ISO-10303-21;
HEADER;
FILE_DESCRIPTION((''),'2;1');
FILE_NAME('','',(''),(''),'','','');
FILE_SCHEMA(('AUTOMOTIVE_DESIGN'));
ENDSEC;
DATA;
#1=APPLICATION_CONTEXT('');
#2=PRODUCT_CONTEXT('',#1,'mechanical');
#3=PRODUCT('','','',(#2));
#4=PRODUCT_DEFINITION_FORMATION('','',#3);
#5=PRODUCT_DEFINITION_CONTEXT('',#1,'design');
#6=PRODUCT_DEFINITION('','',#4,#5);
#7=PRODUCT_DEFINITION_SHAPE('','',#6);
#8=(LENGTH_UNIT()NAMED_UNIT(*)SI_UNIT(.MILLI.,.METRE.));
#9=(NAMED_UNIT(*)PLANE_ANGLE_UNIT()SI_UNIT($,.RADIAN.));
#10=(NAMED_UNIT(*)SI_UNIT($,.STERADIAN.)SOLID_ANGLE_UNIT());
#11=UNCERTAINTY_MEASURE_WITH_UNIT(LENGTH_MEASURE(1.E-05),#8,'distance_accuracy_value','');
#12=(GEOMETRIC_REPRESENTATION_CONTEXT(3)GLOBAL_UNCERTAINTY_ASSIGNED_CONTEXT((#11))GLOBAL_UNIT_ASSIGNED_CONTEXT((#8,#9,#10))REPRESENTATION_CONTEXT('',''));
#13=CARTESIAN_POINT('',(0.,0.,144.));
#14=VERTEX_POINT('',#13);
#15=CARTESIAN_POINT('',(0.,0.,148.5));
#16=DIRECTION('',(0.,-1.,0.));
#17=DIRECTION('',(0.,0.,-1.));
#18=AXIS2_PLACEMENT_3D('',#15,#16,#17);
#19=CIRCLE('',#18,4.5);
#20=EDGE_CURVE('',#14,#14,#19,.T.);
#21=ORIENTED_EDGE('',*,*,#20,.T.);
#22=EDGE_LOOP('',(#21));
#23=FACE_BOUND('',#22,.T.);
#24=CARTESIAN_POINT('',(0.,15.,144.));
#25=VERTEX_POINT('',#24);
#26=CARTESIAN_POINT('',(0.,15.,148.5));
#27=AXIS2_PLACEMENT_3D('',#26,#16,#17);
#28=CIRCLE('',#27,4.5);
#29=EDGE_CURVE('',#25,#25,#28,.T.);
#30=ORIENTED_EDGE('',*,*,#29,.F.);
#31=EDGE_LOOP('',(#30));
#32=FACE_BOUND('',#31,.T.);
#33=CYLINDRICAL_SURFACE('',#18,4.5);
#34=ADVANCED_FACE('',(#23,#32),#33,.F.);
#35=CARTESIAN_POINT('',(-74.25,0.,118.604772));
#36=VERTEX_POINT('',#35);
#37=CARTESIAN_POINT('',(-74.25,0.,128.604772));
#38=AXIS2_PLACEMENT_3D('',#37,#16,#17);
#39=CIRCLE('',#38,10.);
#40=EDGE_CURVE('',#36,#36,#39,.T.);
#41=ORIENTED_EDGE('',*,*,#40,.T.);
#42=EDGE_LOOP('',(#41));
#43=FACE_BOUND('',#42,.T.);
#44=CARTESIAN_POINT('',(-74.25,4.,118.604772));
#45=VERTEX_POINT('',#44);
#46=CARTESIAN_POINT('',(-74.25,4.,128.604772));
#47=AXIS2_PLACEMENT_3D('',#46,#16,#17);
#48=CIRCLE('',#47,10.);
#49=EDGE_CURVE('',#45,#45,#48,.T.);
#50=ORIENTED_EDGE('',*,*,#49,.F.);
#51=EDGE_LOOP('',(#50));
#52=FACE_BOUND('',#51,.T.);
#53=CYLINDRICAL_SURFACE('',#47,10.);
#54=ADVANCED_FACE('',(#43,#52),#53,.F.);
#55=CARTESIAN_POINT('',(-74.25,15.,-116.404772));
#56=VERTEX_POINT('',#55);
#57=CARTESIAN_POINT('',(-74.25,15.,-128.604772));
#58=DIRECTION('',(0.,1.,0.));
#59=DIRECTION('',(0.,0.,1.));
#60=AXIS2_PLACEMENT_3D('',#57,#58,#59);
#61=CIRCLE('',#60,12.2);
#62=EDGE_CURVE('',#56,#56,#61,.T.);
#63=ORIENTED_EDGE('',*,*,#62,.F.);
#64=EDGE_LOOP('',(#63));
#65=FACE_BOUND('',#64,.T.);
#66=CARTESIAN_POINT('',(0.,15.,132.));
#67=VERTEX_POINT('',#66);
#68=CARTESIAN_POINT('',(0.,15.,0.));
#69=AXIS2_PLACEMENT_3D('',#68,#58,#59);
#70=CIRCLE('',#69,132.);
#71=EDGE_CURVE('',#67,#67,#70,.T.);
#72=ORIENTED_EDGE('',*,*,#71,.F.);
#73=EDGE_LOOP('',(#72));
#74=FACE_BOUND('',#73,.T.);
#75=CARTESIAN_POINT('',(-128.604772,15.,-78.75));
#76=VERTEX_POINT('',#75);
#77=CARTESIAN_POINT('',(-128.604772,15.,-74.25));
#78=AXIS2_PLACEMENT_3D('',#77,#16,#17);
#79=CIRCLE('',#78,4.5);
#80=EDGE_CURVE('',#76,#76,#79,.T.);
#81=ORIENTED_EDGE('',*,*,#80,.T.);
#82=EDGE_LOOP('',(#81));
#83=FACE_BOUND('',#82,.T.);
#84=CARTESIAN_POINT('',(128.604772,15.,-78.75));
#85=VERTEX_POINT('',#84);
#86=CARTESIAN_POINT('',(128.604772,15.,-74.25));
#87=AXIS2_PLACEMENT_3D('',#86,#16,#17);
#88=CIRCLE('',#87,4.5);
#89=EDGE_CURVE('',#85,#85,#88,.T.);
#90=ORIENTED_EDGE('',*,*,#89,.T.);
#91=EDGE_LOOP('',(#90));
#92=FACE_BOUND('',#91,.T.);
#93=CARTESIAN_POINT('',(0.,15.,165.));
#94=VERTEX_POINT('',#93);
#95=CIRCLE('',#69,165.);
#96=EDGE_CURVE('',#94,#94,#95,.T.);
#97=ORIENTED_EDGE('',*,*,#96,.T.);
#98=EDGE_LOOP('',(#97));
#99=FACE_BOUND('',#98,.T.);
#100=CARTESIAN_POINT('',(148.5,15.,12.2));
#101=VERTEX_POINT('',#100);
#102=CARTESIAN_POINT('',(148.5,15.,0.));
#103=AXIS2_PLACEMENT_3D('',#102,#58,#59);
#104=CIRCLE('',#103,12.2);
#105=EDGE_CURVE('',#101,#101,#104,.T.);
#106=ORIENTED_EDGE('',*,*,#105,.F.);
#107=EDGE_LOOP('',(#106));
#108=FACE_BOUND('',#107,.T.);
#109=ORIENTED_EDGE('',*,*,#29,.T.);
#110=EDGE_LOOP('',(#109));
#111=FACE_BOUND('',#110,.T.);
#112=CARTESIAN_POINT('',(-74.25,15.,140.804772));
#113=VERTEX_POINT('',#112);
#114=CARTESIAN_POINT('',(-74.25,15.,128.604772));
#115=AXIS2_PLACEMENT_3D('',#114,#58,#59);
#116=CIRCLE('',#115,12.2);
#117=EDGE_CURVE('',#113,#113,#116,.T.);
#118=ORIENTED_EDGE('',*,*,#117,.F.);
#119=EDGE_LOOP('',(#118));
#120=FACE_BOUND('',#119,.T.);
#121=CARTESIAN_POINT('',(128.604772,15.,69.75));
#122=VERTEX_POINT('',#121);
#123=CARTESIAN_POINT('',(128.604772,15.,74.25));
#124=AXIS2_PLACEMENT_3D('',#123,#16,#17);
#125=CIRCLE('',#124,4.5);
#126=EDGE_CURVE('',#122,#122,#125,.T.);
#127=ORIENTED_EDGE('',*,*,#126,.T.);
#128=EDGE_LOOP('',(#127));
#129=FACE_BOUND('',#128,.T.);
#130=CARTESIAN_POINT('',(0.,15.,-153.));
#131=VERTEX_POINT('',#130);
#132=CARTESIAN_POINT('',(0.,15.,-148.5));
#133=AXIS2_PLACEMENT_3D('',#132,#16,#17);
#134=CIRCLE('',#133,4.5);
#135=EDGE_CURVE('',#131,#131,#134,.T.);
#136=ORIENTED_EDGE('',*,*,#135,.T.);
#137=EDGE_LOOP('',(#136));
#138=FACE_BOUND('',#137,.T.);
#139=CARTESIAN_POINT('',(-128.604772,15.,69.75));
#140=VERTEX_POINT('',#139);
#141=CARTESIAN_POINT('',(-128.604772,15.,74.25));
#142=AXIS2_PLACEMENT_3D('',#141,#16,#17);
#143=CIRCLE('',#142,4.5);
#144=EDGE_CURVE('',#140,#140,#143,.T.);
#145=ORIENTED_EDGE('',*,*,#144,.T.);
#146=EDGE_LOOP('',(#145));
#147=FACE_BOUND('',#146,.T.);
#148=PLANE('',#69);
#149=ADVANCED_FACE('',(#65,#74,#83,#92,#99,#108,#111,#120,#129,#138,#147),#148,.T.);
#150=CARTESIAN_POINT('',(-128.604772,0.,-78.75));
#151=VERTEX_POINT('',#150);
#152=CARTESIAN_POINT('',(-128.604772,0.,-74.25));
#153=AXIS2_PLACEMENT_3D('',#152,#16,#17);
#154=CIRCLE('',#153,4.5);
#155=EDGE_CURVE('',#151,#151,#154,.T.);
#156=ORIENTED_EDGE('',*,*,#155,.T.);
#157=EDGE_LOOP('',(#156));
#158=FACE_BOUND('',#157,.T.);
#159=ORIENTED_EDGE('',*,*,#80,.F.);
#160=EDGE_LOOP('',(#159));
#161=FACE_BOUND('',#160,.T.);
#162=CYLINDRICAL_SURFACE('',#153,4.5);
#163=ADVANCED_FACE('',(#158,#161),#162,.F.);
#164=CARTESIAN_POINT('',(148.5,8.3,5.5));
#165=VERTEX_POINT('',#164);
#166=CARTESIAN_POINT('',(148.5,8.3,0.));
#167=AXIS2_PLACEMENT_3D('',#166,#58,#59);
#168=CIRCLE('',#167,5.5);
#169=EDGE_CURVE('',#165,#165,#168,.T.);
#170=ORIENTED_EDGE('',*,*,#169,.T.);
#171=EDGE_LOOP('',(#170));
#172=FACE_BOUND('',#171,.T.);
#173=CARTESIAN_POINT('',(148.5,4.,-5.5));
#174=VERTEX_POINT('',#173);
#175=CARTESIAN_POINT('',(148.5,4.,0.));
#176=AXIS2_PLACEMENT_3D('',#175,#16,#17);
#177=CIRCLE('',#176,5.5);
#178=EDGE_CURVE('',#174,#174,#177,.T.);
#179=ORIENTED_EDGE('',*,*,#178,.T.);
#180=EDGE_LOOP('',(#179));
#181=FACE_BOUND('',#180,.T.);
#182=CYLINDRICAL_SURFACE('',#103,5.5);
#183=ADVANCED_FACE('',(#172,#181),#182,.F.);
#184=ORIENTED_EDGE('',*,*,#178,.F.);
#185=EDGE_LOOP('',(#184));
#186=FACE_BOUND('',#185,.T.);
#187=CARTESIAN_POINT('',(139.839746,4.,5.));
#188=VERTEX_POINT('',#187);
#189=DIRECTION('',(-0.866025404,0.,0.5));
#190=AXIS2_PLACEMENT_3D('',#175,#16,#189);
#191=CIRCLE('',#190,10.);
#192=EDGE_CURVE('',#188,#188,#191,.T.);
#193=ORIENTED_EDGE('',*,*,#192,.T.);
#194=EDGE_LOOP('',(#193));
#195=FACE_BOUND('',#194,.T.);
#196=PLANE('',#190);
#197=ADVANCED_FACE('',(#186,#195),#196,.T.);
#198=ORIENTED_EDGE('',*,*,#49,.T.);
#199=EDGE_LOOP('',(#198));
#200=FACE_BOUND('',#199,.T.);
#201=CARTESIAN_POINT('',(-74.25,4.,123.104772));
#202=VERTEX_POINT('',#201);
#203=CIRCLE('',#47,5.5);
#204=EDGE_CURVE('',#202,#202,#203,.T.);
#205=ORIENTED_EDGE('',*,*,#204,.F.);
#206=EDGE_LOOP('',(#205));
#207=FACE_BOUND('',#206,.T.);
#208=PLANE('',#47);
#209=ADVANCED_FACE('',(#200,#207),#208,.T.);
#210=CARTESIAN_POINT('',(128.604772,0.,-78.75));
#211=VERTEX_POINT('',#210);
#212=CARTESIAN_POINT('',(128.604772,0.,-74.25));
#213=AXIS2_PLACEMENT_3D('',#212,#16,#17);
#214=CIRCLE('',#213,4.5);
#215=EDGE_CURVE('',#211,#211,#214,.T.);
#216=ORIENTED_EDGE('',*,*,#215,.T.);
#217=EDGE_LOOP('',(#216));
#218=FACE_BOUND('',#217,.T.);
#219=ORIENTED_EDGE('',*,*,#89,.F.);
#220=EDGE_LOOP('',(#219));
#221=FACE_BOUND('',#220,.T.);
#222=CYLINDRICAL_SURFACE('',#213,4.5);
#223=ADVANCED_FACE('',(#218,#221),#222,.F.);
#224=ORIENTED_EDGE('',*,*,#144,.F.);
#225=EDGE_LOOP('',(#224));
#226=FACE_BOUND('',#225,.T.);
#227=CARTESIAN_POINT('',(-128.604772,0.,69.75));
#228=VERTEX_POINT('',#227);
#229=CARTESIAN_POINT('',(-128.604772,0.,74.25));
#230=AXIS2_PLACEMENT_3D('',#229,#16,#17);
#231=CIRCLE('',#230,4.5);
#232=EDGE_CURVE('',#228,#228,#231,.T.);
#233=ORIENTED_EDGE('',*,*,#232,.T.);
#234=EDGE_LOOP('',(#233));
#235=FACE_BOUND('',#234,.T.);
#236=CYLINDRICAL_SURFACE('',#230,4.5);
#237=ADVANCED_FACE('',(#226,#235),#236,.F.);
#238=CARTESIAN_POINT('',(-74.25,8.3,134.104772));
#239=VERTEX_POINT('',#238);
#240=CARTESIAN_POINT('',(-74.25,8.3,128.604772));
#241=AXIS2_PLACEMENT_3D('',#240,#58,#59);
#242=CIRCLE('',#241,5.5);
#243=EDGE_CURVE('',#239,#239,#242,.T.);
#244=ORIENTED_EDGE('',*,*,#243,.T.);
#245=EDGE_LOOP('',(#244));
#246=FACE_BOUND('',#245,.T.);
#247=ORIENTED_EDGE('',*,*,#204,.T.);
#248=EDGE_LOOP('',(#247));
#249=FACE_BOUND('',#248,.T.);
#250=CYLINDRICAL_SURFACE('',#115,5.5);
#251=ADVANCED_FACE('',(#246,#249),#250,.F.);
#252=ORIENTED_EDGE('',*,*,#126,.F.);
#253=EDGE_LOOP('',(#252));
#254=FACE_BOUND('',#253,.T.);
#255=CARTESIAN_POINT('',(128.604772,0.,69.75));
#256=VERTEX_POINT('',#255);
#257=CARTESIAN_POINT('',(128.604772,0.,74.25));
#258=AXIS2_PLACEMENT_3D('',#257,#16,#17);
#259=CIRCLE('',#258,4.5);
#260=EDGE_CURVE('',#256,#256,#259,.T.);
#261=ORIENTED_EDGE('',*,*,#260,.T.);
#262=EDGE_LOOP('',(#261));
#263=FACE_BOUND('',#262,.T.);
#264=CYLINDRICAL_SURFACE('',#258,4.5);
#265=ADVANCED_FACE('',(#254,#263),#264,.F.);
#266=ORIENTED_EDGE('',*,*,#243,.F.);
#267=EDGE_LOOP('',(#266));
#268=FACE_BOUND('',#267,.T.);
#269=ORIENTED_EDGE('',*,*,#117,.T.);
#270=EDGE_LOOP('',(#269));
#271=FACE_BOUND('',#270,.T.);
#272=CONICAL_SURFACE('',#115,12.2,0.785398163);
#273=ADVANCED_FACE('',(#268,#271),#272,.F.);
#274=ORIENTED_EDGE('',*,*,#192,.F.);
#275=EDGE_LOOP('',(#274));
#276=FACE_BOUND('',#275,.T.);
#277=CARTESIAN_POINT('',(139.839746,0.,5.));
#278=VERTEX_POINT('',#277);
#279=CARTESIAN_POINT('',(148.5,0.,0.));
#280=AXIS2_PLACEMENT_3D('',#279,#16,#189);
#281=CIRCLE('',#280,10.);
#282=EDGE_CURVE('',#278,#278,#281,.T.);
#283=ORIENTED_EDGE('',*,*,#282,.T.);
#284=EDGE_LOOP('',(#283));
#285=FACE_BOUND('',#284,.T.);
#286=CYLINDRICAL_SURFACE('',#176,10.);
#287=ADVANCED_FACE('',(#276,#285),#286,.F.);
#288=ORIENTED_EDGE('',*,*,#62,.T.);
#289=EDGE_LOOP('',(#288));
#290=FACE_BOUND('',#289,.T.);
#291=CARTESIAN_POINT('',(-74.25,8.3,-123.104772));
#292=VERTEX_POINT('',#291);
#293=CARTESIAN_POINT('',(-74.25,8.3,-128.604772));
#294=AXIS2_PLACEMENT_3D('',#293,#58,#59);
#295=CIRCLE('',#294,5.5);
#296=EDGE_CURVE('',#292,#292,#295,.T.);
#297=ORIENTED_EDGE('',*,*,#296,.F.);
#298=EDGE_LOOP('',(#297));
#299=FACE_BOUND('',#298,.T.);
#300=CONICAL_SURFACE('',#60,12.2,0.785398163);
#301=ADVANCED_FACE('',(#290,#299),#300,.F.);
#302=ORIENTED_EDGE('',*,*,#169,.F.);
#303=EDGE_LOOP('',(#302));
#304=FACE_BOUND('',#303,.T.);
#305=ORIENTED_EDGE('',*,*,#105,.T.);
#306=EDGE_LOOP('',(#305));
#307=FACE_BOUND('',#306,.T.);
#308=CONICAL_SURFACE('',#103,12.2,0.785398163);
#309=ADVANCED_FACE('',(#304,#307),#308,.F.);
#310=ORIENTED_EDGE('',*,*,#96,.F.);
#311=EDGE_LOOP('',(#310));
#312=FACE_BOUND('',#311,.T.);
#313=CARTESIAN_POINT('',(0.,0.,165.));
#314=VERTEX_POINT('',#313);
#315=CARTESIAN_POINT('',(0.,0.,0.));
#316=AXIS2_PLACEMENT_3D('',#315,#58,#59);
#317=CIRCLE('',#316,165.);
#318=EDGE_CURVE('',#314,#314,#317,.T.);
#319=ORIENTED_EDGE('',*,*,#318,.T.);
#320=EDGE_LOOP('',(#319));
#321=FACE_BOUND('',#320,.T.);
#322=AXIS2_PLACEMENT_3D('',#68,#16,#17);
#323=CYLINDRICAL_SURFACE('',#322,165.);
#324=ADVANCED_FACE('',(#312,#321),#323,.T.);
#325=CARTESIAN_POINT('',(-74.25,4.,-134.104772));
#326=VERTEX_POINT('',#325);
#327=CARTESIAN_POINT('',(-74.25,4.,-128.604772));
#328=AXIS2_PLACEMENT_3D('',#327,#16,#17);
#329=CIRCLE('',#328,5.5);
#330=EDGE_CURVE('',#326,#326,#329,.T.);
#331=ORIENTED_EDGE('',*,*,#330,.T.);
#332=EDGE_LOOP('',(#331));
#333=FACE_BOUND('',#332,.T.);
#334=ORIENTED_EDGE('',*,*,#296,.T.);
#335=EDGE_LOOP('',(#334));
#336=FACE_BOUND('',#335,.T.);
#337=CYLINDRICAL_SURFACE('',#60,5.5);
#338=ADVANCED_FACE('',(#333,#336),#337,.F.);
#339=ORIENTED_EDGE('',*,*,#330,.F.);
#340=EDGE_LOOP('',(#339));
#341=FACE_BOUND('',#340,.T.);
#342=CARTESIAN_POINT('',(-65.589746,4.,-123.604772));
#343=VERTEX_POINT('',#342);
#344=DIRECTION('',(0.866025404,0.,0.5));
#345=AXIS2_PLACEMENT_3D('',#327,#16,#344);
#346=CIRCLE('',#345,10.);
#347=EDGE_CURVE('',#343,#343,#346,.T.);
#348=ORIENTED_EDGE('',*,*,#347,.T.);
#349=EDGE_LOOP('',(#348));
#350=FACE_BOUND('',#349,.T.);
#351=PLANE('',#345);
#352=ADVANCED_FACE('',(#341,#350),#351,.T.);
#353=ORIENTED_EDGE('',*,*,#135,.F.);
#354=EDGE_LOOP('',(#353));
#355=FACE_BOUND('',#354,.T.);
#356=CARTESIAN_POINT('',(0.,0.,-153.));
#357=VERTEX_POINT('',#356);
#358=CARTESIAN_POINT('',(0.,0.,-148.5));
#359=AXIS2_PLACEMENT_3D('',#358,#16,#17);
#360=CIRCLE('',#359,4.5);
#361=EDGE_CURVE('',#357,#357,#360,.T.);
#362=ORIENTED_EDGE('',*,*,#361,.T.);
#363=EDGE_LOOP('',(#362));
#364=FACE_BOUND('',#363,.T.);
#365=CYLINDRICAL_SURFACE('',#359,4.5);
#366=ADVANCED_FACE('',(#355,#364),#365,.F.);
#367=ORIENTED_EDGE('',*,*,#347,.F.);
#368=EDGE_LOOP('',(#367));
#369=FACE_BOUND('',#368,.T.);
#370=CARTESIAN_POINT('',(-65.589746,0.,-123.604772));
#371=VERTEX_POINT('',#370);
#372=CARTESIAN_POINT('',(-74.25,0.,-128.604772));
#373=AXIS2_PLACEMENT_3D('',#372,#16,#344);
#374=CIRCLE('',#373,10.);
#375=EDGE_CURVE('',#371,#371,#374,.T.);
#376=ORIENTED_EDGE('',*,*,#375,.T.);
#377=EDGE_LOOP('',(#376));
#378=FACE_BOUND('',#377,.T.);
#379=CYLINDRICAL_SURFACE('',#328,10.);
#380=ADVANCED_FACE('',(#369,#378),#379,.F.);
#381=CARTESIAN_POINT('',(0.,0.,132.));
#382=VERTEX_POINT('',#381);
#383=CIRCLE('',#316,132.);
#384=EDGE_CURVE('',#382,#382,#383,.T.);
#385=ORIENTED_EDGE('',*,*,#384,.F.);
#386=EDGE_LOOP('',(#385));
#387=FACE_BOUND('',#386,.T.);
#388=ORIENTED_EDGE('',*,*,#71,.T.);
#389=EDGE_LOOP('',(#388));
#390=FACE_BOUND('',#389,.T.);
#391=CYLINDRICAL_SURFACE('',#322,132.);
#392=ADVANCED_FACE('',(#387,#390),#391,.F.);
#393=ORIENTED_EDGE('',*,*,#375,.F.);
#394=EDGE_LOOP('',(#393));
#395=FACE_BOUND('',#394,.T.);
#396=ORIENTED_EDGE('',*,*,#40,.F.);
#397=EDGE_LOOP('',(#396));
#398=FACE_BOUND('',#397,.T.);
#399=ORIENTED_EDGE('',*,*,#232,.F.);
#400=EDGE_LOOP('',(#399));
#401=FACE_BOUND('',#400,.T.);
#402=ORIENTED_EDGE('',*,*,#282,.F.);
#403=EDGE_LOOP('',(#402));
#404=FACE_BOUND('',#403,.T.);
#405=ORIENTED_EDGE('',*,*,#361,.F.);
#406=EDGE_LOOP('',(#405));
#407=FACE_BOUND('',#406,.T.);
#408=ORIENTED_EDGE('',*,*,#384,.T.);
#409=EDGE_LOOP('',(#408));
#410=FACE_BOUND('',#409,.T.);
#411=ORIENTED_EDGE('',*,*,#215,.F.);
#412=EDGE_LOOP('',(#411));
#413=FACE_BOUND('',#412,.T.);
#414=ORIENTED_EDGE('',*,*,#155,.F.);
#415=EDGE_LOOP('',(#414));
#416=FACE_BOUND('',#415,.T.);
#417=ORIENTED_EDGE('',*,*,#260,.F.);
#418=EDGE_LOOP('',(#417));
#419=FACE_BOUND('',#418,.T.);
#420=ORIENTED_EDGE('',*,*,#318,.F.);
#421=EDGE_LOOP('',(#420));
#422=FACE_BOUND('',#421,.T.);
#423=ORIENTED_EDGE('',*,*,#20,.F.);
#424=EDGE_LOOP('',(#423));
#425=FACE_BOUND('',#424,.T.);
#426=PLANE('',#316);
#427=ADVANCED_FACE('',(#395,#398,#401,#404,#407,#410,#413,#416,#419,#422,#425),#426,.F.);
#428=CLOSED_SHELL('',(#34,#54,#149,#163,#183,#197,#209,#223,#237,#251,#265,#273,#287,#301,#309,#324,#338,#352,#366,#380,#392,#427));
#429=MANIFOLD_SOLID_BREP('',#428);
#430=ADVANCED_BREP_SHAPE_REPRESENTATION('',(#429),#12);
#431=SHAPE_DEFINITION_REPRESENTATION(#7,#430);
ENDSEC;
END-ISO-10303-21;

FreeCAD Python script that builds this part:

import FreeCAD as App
import Part
import Sketcher
from FreeCAD import Vector

doc = App.newDocument("Part")
body = doc.addObject("PartDesign::Body", "Body")

sketch1 = doc.addObject("Sketcher::SketchObject", "Sketch")
body.addObject(sketch1)
sketch1.AttachmentSupport = (doc.XZ_Plane, [""])
sketch1.MapMode = "FlatFace"
sketch1.addGeometry([
    Part.Circle(Vector(0, 0, 0), Vector(0, 0, 1), 165),
    Part.Circle(Vector(0, 0, 0), Vector(0, 0, 1), 132),
], False)
sketch1.addConstraint([
    Sketcher.Constraint("Coincident", 0, 3, -1, 1),
    Sketcher.Constraint("Coincident", 1, 3, -1, 1),
    Sketcher.Constraint("Diameter", 0, 330.0),
    Sketcher.Constraint("Diameter", 1, 264.0),
])
pad1 = doc.addObject("PartDesign::Pad", "Pad")
body.addObject(pad1)
pad1.Profile = sketch1
pad1.Length = 15
pad1.Reversed = True

sketch2 = doc.addObject("Sketcher::SketchObject", "Sketch001")
body.addObject(sketch2)
sketch2.AttachmentSupport = (doc.XZ_Plane, [""])
sketch2.MapMode = "FlatFace"
sketch2.addGeometry(Part.Circle(Vector(0, -148.5, 0), Vector(0, 0, 1), 4.5), False)
sketch2.addConstraint([
    Sketcher.Constraint("PointOnObject", 0, 3, -2),
    Sketcher.Constraint("Diameter", 0, 9.0),
    Sketcher.Constraint("DistanceY", 0, 3, -1, 1, 148.5),
])
doc.recompute()
hole = doc.addObject("PartDesign::Hole", "Hole")
body.addObject(hole)
hole.Profile = sketch2
hole.ThreadType = "None"
hole.Diameter = 9
hole.DepthType = "ThroughAll"
doc.recompute()

polarpattern = doc.addObject("PartDesign::PolarPattern", "PolarPattern")
body.addObject(polarpattern)
polarpattern.Originals = [hole]
polarpattern.Axis = (doc.Y_Axis, [""])
polarpattern.Angle = 360
polarpattern.Occurrences = 6
body.Tip = polarpattern

sketch3 = doc.addObject("Sketcher::SketchObject", "Sketch002")
body.addObject(sketch3)
sketch3.AttachmentSupport = (doc.XZ_Plane, [""])
sketch3.MapMode = "FlatFace"
sketch3.addGeometry(Part.Circle(Vector(-74, 129, 0), Vector(0, 0, 1), 10), False)
sketch3.addConstraint([
    Sketcher.Constraint("Diameter", 0, 20.0),
    Sketcher.Constraint("DistanceX", 0, 3, -1, 1, 74.25),
    Sketcher.Constraint("DistanceY", -1, 1, 0, 3, 128.604772),
])
pocket1 = doc.addObject("PartDesign::Pocket", "Pocket")
body.addObject(pocket1)
pocket1.Profile = sketch3
pocket1.Length = 4

sketch4 = doc.addObject("Sketcher::SketchObject", "Sketch003")
body.addObject(sketch4)
sketch4.AttachmentSupport = (doc.XZ_Plane, [""])
sketch4.MapMode = "FlatFace"
sketch4.AttachmentOffset = App.Placement(Vector(0, 0, -15), App.Rotation())
sketch4.addGeometry(Part.Circle(Vector(-74, 129, 0), Vector(0, 0, 1), 6), False)
sketch4.addConstraint([
    Sketcher.Constraint("Diameter", 0, 11.0),
    Sketcher.Constraint("DistanceX", 0, 3, -1, 1, 74.25),
    Sketcher.Constraint("DistanceY", -1, 1, 0, 3, 128.604772),
])
doc.recompute()
hole2 = doc.addObject("PartDesign::Hole", "Hole001")
body.addObject(hole2)
hole2.Profile = sketch4
hole2.ThreadType = "None"
hole2.Diameter = 11
hole2.DepthType = "ThroughAll"
hole2.HoleCutType = "Countersink"
hole2.HoleCutDiameter = 24.4
hole2.HoleCutCountersinkAngle = 90
hole2.Reversed = True
doc.recompute()

polarpattern2 = doc.addObject("PartDesign::PolarPattern", "PolarPattern001")
body.addObject(polarpattern2)
polarpattern2.Originals = [pocket1, hole2]
polarpattern2.Axis = (doc.Y_Axis, [""])
polarpattern2.Angle = 360
polarpattern2.Occurrences = 3
body.Tip = polarpattern2

doc.recompute()
